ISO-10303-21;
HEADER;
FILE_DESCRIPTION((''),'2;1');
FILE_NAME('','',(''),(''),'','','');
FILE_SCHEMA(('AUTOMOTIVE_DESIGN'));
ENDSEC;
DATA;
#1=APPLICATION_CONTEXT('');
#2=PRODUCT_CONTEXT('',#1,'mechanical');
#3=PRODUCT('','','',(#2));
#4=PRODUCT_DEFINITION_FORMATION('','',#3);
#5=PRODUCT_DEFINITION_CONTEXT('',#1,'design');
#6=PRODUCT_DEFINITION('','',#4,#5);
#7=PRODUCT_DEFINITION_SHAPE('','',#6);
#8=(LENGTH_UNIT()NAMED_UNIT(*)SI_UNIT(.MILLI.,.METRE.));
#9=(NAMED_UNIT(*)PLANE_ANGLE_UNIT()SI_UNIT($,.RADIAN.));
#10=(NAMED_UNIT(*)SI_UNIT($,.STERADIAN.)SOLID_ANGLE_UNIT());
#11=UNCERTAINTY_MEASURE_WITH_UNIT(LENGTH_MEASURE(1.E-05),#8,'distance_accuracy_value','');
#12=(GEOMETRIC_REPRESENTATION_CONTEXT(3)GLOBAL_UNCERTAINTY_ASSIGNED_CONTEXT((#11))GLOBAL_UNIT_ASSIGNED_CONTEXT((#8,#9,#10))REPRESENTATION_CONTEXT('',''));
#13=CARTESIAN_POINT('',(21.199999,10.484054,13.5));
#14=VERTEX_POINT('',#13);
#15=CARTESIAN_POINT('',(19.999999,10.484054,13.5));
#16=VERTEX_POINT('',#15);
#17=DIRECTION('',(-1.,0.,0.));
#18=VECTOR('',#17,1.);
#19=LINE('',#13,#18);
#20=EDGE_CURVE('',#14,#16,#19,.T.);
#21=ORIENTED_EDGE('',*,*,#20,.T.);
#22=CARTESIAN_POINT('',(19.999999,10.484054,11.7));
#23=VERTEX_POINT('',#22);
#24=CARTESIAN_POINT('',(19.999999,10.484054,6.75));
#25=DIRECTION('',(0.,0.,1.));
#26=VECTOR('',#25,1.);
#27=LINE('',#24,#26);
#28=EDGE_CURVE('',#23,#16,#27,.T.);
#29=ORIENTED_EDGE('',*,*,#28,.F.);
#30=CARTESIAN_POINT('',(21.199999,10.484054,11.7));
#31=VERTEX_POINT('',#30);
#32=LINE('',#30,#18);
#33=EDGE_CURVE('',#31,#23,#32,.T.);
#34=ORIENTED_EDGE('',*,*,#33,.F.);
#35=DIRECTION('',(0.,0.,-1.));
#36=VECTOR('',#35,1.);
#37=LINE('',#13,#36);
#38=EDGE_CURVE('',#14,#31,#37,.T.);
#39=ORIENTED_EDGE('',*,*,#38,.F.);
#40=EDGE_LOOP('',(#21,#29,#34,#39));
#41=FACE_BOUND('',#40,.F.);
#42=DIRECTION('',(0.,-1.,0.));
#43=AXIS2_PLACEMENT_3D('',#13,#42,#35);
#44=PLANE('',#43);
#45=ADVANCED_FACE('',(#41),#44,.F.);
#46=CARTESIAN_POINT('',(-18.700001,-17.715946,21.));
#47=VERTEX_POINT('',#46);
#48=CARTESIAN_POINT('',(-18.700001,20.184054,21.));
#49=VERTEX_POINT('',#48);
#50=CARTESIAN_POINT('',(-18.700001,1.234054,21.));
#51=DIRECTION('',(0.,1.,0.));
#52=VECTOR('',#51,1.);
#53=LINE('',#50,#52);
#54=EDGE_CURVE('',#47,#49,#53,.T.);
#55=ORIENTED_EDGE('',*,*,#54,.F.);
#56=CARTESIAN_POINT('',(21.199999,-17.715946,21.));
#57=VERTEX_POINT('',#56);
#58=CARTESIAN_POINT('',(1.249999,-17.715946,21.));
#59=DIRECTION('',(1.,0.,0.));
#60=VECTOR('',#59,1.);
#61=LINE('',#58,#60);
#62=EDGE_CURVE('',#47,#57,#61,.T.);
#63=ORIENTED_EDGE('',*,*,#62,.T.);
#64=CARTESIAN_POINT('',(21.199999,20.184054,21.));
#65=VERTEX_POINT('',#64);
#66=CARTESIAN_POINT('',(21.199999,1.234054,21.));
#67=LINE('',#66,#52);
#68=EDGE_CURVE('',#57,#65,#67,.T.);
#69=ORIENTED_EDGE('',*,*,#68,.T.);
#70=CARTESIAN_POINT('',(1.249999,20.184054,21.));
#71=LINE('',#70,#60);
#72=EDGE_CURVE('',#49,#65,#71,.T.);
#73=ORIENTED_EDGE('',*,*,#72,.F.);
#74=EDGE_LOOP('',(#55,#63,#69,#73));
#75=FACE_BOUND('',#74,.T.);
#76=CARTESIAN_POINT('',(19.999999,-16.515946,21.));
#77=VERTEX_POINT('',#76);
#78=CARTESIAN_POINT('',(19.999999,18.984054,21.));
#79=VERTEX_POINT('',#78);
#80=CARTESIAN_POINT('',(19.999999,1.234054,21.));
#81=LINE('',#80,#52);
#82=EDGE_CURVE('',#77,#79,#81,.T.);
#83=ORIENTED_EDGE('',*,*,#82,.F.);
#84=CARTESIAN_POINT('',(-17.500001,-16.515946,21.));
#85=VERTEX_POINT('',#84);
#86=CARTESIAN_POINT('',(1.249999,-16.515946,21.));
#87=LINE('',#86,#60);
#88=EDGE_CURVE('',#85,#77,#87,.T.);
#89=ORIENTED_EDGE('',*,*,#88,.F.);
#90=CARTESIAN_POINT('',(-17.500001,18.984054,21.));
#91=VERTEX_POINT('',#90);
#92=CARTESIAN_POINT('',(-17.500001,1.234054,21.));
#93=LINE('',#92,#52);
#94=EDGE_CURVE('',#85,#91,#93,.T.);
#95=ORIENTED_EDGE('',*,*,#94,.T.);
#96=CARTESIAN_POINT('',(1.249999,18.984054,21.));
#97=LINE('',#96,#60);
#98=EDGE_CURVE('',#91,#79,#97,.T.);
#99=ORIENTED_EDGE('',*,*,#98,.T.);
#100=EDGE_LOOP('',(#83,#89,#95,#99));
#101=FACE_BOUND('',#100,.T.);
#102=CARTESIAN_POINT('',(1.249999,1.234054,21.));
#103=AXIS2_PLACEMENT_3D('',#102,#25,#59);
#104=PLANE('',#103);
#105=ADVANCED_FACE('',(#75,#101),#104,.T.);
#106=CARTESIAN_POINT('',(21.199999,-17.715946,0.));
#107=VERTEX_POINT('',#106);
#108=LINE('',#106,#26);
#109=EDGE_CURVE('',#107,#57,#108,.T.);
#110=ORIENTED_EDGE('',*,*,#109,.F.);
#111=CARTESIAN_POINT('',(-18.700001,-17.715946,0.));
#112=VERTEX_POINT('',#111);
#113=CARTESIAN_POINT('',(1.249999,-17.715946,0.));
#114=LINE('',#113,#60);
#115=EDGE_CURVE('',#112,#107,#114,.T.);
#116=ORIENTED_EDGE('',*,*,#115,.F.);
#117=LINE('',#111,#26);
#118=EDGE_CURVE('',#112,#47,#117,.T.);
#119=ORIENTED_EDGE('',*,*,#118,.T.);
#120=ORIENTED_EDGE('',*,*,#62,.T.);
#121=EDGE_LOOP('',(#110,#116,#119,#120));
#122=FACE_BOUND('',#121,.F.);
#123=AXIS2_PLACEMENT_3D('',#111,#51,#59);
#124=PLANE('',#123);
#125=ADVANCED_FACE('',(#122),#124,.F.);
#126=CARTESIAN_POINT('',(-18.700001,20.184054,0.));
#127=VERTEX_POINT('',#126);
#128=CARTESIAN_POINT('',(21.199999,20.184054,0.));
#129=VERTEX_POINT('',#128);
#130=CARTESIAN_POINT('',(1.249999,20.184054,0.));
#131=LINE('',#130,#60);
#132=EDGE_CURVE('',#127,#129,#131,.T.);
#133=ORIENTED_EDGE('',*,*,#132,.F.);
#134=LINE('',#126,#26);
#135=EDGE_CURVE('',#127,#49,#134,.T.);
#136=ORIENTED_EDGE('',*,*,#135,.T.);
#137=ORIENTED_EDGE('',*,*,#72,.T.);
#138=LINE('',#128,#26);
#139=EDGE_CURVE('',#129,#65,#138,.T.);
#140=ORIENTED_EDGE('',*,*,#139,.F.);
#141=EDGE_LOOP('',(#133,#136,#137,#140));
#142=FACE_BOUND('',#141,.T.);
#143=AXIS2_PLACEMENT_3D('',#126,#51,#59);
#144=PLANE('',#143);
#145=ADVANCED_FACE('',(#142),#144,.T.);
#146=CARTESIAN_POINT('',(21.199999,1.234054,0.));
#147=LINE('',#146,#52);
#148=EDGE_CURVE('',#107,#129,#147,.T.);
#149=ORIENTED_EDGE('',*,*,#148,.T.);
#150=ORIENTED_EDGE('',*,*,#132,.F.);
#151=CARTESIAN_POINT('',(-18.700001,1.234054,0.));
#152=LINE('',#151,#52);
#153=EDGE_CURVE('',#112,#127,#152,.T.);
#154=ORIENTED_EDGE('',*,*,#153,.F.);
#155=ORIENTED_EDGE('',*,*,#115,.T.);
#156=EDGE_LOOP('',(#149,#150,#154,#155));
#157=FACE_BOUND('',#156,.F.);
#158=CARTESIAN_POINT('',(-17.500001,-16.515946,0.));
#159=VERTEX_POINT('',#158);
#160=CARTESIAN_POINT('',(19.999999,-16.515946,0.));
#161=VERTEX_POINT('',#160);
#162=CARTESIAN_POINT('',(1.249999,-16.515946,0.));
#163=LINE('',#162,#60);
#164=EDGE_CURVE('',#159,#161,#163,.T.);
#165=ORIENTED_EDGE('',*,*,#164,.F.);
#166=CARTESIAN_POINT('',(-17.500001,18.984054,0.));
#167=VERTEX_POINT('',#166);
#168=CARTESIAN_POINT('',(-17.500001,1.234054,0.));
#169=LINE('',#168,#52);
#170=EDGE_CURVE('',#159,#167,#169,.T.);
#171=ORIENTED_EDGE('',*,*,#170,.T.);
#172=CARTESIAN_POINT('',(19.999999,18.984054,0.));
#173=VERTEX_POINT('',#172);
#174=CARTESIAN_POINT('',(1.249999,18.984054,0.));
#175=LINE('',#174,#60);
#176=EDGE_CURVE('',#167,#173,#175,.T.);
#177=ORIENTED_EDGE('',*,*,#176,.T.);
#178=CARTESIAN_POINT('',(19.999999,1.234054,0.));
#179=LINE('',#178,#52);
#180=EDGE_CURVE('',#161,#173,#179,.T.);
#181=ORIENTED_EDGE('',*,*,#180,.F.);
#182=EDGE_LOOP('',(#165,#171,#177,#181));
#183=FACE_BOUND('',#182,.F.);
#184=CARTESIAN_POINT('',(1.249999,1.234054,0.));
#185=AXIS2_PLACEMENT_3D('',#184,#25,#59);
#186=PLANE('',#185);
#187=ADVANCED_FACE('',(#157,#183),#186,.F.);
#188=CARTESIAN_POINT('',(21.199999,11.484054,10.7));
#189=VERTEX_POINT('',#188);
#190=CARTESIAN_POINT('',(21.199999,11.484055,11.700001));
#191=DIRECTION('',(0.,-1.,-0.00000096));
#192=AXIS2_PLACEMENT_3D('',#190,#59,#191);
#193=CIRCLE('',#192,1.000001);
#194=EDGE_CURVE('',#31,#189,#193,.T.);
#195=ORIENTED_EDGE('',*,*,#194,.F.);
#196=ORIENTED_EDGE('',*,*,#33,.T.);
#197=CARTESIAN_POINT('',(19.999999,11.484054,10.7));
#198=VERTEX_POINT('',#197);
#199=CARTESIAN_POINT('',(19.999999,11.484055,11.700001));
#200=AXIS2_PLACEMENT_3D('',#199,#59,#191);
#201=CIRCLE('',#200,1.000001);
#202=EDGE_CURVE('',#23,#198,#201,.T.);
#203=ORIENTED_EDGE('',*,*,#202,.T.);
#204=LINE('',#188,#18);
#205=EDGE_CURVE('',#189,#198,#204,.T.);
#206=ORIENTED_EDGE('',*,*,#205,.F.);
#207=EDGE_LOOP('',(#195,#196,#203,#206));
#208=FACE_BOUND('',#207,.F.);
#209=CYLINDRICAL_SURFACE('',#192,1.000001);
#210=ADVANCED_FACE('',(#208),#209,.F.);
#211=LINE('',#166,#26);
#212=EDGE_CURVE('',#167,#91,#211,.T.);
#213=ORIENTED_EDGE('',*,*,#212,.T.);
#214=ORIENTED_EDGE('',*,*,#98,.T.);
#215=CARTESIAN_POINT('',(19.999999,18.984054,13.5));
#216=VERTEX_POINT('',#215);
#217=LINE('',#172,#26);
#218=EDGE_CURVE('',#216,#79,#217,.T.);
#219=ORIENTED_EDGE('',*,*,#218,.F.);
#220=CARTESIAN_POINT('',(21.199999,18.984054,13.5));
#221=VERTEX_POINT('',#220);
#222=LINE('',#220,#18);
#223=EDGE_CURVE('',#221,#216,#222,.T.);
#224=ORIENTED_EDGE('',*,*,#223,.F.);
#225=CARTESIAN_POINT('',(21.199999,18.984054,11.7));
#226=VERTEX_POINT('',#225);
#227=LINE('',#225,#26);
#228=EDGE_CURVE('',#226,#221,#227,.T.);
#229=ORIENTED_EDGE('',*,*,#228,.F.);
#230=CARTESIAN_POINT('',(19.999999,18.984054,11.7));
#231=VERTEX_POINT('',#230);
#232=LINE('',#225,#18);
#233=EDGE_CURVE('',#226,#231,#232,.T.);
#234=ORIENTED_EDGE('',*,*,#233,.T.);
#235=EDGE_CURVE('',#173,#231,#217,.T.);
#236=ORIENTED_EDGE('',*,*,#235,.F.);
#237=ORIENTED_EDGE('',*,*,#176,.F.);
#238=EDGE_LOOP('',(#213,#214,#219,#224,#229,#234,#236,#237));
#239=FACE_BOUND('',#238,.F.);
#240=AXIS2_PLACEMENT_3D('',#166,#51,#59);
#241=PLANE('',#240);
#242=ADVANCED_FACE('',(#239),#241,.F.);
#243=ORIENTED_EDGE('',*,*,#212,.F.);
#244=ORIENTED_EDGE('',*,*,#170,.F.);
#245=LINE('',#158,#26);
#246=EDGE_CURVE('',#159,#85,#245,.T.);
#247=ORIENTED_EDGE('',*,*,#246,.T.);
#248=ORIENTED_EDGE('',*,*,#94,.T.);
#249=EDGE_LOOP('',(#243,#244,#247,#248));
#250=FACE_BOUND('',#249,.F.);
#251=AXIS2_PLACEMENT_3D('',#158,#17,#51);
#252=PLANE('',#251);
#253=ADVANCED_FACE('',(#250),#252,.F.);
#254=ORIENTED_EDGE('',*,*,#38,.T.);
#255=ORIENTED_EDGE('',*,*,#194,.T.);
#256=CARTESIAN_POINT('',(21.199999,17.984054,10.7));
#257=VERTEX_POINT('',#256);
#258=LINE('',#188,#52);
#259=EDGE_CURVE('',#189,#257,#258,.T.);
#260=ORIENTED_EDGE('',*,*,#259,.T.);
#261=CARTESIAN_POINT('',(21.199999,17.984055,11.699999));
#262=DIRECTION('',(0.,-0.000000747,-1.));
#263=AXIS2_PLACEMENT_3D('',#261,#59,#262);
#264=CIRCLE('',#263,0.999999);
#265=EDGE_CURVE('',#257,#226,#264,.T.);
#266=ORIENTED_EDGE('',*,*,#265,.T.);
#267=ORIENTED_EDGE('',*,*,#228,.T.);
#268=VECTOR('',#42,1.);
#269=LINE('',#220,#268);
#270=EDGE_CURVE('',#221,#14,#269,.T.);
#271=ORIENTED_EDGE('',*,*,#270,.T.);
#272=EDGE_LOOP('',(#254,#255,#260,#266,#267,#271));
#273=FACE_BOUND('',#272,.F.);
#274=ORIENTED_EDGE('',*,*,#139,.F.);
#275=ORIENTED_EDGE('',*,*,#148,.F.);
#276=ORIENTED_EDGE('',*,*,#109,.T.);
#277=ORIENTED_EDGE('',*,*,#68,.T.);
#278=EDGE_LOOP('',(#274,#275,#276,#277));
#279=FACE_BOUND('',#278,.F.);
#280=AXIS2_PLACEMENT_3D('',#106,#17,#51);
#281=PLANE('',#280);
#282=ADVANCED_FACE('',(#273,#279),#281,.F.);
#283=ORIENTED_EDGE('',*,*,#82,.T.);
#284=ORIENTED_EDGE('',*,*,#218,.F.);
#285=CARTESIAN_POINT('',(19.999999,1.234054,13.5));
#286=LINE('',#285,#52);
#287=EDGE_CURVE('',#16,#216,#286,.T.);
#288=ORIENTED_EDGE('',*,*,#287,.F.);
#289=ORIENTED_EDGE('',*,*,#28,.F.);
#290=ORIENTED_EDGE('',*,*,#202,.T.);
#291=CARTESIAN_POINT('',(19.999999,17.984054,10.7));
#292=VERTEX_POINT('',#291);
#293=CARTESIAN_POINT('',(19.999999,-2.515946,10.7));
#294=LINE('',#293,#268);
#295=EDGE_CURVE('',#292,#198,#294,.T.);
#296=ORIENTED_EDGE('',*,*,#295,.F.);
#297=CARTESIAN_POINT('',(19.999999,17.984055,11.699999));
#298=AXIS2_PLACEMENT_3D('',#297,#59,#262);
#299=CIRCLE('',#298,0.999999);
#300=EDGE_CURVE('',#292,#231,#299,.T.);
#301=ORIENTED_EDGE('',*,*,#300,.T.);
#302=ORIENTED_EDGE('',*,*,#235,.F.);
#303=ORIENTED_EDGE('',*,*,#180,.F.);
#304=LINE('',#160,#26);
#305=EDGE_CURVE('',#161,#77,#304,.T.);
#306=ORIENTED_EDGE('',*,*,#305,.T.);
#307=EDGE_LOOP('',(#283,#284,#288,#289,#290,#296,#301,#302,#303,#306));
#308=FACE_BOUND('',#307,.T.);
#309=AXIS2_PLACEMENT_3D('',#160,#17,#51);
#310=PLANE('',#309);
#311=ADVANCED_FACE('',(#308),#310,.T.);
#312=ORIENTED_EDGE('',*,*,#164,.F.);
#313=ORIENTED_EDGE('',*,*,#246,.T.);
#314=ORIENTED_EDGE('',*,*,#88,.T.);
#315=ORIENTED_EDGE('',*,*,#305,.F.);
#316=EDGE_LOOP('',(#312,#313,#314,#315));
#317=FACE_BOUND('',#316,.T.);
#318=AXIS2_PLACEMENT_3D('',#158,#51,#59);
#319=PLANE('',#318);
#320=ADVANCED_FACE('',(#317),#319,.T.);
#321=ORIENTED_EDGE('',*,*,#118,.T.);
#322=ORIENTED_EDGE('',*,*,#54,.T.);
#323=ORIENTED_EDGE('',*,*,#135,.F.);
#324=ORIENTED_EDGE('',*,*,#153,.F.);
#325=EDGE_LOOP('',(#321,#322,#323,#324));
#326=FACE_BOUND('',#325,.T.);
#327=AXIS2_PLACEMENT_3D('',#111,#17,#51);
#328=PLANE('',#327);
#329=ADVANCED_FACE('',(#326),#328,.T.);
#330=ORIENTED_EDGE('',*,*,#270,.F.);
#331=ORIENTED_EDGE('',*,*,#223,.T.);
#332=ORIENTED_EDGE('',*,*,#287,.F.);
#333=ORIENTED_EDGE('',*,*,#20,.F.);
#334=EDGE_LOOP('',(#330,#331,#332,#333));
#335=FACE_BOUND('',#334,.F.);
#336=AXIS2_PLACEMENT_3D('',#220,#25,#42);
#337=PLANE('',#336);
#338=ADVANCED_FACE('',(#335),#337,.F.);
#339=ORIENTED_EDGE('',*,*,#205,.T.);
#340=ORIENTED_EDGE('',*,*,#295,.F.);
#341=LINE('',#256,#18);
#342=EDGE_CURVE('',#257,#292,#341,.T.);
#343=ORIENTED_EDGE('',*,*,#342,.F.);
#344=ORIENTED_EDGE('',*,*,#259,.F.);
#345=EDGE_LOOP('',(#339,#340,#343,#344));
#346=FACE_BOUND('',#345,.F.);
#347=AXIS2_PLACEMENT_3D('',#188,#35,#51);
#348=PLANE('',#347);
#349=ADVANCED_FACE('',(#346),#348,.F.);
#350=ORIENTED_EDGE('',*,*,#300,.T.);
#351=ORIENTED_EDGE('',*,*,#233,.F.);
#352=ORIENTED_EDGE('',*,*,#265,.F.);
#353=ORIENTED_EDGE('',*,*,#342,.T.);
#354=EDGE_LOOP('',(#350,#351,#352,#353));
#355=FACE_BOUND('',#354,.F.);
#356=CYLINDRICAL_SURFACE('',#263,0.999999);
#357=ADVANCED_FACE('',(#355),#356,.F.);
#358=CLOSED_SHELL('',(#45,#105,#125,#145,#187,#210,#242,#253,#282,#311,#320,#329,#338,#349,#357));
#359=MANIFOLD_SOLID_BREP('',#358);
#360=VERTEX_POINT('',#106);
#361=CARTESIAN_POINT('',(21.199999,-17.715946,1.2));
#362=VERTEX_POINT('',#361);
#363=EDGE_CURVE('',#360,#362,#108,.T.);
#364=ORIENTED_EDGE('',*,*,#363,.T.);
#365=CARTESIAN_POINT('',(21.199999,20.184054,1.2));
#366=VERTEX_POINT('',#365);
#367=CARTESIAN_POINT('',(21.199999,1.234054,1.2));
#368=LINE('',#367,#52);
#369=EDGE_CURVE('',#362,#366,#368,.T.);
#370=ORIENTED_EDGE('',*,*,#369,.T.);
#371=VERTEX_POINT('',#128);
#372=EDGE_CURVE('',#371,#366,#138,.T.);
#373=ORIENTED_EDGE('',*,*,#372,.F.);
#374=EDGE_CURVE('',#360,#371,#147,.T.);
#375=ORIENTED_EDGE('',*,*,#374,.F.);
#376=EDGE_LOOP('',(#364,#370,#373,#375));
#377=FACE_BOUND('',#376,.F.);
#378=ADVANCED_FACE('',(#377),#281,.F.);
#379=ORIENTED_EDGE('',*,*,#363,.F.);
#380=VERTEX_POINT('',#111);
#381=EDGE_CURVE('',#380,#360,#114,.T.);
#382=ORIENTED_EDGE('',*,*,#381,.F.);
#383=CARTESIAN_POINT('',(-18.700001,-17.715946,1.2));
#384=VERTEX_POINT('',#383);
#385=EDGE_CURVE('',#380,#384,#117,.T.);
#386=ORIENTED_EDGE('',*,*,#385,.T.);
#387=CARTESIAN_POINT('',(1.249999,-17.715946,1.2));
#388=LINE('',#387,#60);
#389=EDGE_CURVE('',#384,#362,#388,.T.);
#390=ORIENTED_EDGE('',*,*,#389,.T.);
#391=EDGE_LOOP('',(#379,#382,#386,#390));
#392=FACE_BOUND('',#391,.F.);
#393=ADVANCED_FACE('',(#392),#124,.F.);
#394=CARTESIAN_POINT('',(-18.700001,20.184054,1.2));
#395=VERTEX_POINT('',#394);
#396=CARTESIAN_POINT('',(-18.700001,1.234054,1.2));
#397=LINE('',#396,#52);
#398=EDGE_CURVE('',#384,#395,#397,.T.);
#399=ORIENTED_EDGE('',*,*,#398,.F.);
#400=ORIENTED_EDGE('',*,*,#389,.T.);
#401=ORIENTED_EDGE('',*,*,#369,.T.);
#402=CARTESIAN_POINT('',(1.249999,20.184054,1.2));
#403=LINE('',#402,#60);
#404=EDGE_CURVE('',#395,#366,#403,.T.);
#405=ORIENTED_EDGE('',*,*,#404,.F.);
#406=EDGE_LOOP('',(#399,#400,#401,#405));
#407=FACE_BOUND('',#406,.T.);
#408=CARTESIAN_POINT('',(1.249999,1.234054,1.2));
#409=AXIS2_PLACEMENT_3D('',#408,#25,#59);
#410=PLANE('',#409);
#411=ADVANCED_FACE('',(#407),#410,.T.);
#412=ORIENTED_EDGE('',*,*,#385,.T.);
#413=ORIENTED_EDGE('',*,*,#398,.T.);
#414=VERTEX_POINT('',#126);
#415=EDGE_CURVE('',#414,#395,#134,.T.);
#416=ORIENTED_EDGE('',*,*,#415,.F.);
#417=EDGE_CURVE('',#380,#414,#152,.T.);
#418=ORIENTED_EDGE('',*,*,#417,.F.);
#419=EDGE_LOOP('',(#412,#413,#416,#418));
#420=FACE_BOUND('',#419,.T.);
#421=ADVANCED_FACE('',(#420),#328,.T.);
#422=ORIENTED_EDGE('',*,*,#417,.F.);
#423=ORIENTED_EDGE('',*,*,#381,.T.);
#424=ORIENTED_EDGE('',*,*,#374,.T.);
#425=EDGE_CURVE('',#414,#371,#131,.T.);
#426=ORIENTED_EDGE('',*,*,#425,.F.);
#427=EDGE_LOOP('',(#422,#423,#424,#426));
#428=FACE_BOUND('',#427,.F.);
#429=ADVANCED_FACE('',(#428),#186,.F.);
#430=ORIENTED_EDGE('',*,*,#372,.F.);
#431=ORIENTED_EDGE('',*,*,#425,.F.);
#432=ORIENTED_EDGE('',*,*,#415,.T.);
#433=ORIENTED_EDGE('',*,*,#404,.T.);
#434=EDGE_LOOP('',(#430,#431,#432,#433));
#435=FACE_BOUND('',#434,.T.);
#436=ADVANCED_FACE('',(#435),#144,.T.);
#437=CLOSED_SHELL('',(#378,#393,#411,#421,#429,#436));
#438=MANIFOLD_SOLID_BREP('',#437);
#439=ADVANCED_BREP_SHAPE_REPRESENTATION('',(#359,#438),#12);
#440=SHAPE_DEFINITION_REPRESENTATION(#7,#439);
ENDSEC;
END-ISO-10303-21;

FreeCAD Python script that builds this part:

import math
import FreeCAD as App
import Part
import Sketcher


def add_polygon(sketch, points):
    """Adds a closed chain of lines whose ends are joined by coincident constraints."""
    first, n = sketch.GeometryCount, len(points)
    for a, b in zip(points, points[1:] + points[:1]):
        sketch.addGeometry(Part.LineSegment(App.Vector(*a, 0), App.Vector(*b, 0)), False)
    for i in range(n):
        sketch.addConstraint(Sketcher.Constraint("Coincident", first + i, 2, first + (i + 1) % n, 1))

doc = App.newDocument("Part")
params = doc.addObject("Spreadsheet::Sheet", "Params")
for row, (alias, value) in enumerate([
    ("sketch1_width", "39.9 mm"),
    ("sketch1_height", "37.9 mm"),
    ("pad1_length", "1.2 mm"),
    ("sketch2_width", "39.9 mm"),
    ("sketch2_width2", "37.5 mm"),
    ("sketch2_height", "37.9 mm"),
    ("sketch2_height2", "35.5 mm"),
    ("pad2_length", "21 mm"),
    ("sketch3_radius", "1.000001 mm"),
    ("sketch3_width", "6.5 mm"),
    ("sketch3_height", "1.8 mm"),
    ("pocket1_length", "2 mm"),
], start=1):
    params.set(f"A{row}", alias)
    params.set(f"B{row}", "=" + value)
    params.setAlias(f"B{row}", alias)

body = doc.addObject("PartDesign::Body", "Body")

# Sketch on XY plane
sketch1 = body.newObject("Sketcher::SketchObject", "Sketch")
sketch1.AttachmentSupport = (doc.getObject("XY_Plane"), [""])
sketch1.MapMode = "FlatFace"
add_polygon(sketch1, [(-19, 20), (-19, -18), (21, -18), (21, 20)])  # lines 0-3
sketch1.addConstraint([
    Sketcher.Constraint("Vertical", 0),
    Sketcher.Constraint("Horizontal", 1),
    Sketcher.Constraint("Vertical", 2),
    Sketcher.Constraint("Horizontal", 3),
    Sketcher.Constraint("DistanceX", 1, 1, 1, 2, 39.9),
    Sketcher.Constraint("DistanceY", 0, 2, 0, 1, 37.9),
    Sketcher.Constraint("DistanceX", 0, 2, -1, 1, 18.700001),
    Sketcher.Constraint("DistanceY", 0, 2, -1, 1, 17.715946),
])
sketch1.setExpression("Constraints[8]", "Params.sketch1_width")
sketch1.setExpression("Constraints[9]", "Params.sketch1_height")
pad1 = body.newObject("PartDesign::Pad", "Pad")
pad1.Profile = sketch1
pad1.setExpression("Length", "Params.pad1_length")
body2 = doc.addObject("PartDesign::Body", "Body001")

# Sketch on XY plane
sketch2 = body2.newObject("Sketcher::SketchObject", "Sketch001")
sketch2.AttachmentSupport = (doc.getObject("XY_Plane001"), [""])
sketch2.MapMode = "FlatFace"
add_polygon(sketch2, [(-19, 20), (-19, -18), (21, -18), (21, 20)])  # lines 0-3
add_polygon(sketch2, [(20, -17), (-18, -17), (-18, 19), (20, 19)])  # lines 4-7
sketch2.addConstraint([
    Sketcher.Constraint("Vertical", 0),
    Sketcher.Constraint("Horizontal", 1),
    Sketcher.Constraint("Vertical", 2),
    Sketcher.Constraint("Horizontal", 3),
    Sketcher.Constraint("Horizontal", 4),
    Sketcher.Constraint("Vertical", 5),
    Sketcher.Constraint("Horizontal", 6),
    Sketcher.Constraint("Vertical", 7),
    Sketcher.Constraint("DistanceX", 1, 1, 1, 2, 39.9),
    Sketcher.Constraint("DistanceX", 4, 2, 4, 1, 37.5),
    Sketcher.Constraint("DistanceY", 0, 2, 0, 1, 37.9),
    Sketcher.Constraint("DistanceY", 5, 1, 5, 2, 35.5),
    Sketcher.Constraint("DistanceX", -1, 1, 6, 2, 19.999999),
    Sketcher.Constraint("DistanceX", 0, 2, -1, 1, 18.700001),
    Sketcher.Constraint("DistanceY", 0, 2, 4, 2, 1.2),
    Sketcher.Constraint("DistanceY", 0, 2, -1, 1, 17.715946),
])
sketch2.setExpression("Constraints[16]", "Params.sketch2_width")
sketch2.setExpression("Constraints[17]", "Params.sketch2_width2")
sketch2.setExpression("Constraints[18]", "Params.sketch2_height")
sketch2.setExpression("Constraints[19]", "Params.sketch2_height2")
pad2 = body2.newObject("PartDesign::Pad", "Pad001")
pad2.Profile = sketch2
pad2.setExpression("Length", "Params.pad2_length")

# Sketch on YZ plane
sketch3 = body2.newObject("Sketcher::SketchObject", "Sketch002")
sketch3.AttachmentSupport = (doc.getObject("YZ_Plane001"), [""])
sketch3.MapMode = "FlatFace"
sketch3.AttachmentOffset = App.Placement(App.Vector(0, 0, 21.199999), App.Rotation())
sketch3.addGeometry([
    Part.ArcOfCircle(Part.Circle(App.Vector(11.5, 11.7, 0), App.Vector(0, 0, 1), 1), math.radians(-180), math.radians(-90)),  # 0
    Part.LineSegment(App.Vector(11.5, 10.7, 0), App.Vector(18, 10.7, 0)),  # 1
    Part.ArcOfCircle(Part.Circle(App.Vector(18, 11.7, 0), App.Vector(0, 0, 1), 1), math.radians(-90), math.radians(0)),  # 2
    Part.LineSegment(App.Vector(19, 11.7, 0), App.Vector(19, 13.5, 0)),  # 3
    Part.LineSegment(App.Vector(19, 13.5, 0), App.Vector(10.5, 13.5, 0)),  # 4
    Part.LineSegment(App.Vector(10.5, 13.5, 0), App.Vector(10.5, 11.7, 0)),  # 5
], False)
sketch3.addConstraint([
    Sketcher.Constraint("Tangent", 0, 2, 1, 1),
    Sketcher.Constraint("Tangent", 1, 2, 2, 1),
    Sketcher.Constraint("Tangent", 2, 2, 3, 1),
    Sketcher.Constraint("Coincident", 3, 2, 4, 1),
    Sketcher.Constraint("Coincident", 4, 2, 5, 1),
    Sketcher.Constraint("Tangent", 5, 2, 0, 1),
    Sketcher.Constraint("Horizontal", 1),
    Sketcher.Constraint("Vertical", 3),
    Sketcher.Constraint("Horizontal", 4),
    Sketcher.Constraint("Vertical", 5),
    Sketcher.Constraint("Equal", 0, 2),
    Sketcher.Constraint("Radius", 0, 1.000001),
    Sketcher.Constraint("DistanceX", 1, 1, 1, 2, 6.5),
    Sketcher.Constraint("DistanceY", 3, 1, 3, 2, 1.8),
    Sketcher.Constraint("DistanceY", -1, 1, 0, 3, 11.700001),
    Sketcher.Constraint("DistanceX", -1, 1, 0, 3, 11.484055),
])
sketch3.setExpression("Constraints[11]", "Params.sketch3_radius")
sketch3.setExpression("Constraints[12]", "Params.sketch3_width")
sketch3.setExpression("Constraints[13]", "Params.sketch3_height")
pocket1 = body2.newObject("PartDesign::Pocket", "Pocket")
pocket1.Profile = sketch3
pocket1.setExpression("Length", "Params.pocket1_length")

doc.recompute()
